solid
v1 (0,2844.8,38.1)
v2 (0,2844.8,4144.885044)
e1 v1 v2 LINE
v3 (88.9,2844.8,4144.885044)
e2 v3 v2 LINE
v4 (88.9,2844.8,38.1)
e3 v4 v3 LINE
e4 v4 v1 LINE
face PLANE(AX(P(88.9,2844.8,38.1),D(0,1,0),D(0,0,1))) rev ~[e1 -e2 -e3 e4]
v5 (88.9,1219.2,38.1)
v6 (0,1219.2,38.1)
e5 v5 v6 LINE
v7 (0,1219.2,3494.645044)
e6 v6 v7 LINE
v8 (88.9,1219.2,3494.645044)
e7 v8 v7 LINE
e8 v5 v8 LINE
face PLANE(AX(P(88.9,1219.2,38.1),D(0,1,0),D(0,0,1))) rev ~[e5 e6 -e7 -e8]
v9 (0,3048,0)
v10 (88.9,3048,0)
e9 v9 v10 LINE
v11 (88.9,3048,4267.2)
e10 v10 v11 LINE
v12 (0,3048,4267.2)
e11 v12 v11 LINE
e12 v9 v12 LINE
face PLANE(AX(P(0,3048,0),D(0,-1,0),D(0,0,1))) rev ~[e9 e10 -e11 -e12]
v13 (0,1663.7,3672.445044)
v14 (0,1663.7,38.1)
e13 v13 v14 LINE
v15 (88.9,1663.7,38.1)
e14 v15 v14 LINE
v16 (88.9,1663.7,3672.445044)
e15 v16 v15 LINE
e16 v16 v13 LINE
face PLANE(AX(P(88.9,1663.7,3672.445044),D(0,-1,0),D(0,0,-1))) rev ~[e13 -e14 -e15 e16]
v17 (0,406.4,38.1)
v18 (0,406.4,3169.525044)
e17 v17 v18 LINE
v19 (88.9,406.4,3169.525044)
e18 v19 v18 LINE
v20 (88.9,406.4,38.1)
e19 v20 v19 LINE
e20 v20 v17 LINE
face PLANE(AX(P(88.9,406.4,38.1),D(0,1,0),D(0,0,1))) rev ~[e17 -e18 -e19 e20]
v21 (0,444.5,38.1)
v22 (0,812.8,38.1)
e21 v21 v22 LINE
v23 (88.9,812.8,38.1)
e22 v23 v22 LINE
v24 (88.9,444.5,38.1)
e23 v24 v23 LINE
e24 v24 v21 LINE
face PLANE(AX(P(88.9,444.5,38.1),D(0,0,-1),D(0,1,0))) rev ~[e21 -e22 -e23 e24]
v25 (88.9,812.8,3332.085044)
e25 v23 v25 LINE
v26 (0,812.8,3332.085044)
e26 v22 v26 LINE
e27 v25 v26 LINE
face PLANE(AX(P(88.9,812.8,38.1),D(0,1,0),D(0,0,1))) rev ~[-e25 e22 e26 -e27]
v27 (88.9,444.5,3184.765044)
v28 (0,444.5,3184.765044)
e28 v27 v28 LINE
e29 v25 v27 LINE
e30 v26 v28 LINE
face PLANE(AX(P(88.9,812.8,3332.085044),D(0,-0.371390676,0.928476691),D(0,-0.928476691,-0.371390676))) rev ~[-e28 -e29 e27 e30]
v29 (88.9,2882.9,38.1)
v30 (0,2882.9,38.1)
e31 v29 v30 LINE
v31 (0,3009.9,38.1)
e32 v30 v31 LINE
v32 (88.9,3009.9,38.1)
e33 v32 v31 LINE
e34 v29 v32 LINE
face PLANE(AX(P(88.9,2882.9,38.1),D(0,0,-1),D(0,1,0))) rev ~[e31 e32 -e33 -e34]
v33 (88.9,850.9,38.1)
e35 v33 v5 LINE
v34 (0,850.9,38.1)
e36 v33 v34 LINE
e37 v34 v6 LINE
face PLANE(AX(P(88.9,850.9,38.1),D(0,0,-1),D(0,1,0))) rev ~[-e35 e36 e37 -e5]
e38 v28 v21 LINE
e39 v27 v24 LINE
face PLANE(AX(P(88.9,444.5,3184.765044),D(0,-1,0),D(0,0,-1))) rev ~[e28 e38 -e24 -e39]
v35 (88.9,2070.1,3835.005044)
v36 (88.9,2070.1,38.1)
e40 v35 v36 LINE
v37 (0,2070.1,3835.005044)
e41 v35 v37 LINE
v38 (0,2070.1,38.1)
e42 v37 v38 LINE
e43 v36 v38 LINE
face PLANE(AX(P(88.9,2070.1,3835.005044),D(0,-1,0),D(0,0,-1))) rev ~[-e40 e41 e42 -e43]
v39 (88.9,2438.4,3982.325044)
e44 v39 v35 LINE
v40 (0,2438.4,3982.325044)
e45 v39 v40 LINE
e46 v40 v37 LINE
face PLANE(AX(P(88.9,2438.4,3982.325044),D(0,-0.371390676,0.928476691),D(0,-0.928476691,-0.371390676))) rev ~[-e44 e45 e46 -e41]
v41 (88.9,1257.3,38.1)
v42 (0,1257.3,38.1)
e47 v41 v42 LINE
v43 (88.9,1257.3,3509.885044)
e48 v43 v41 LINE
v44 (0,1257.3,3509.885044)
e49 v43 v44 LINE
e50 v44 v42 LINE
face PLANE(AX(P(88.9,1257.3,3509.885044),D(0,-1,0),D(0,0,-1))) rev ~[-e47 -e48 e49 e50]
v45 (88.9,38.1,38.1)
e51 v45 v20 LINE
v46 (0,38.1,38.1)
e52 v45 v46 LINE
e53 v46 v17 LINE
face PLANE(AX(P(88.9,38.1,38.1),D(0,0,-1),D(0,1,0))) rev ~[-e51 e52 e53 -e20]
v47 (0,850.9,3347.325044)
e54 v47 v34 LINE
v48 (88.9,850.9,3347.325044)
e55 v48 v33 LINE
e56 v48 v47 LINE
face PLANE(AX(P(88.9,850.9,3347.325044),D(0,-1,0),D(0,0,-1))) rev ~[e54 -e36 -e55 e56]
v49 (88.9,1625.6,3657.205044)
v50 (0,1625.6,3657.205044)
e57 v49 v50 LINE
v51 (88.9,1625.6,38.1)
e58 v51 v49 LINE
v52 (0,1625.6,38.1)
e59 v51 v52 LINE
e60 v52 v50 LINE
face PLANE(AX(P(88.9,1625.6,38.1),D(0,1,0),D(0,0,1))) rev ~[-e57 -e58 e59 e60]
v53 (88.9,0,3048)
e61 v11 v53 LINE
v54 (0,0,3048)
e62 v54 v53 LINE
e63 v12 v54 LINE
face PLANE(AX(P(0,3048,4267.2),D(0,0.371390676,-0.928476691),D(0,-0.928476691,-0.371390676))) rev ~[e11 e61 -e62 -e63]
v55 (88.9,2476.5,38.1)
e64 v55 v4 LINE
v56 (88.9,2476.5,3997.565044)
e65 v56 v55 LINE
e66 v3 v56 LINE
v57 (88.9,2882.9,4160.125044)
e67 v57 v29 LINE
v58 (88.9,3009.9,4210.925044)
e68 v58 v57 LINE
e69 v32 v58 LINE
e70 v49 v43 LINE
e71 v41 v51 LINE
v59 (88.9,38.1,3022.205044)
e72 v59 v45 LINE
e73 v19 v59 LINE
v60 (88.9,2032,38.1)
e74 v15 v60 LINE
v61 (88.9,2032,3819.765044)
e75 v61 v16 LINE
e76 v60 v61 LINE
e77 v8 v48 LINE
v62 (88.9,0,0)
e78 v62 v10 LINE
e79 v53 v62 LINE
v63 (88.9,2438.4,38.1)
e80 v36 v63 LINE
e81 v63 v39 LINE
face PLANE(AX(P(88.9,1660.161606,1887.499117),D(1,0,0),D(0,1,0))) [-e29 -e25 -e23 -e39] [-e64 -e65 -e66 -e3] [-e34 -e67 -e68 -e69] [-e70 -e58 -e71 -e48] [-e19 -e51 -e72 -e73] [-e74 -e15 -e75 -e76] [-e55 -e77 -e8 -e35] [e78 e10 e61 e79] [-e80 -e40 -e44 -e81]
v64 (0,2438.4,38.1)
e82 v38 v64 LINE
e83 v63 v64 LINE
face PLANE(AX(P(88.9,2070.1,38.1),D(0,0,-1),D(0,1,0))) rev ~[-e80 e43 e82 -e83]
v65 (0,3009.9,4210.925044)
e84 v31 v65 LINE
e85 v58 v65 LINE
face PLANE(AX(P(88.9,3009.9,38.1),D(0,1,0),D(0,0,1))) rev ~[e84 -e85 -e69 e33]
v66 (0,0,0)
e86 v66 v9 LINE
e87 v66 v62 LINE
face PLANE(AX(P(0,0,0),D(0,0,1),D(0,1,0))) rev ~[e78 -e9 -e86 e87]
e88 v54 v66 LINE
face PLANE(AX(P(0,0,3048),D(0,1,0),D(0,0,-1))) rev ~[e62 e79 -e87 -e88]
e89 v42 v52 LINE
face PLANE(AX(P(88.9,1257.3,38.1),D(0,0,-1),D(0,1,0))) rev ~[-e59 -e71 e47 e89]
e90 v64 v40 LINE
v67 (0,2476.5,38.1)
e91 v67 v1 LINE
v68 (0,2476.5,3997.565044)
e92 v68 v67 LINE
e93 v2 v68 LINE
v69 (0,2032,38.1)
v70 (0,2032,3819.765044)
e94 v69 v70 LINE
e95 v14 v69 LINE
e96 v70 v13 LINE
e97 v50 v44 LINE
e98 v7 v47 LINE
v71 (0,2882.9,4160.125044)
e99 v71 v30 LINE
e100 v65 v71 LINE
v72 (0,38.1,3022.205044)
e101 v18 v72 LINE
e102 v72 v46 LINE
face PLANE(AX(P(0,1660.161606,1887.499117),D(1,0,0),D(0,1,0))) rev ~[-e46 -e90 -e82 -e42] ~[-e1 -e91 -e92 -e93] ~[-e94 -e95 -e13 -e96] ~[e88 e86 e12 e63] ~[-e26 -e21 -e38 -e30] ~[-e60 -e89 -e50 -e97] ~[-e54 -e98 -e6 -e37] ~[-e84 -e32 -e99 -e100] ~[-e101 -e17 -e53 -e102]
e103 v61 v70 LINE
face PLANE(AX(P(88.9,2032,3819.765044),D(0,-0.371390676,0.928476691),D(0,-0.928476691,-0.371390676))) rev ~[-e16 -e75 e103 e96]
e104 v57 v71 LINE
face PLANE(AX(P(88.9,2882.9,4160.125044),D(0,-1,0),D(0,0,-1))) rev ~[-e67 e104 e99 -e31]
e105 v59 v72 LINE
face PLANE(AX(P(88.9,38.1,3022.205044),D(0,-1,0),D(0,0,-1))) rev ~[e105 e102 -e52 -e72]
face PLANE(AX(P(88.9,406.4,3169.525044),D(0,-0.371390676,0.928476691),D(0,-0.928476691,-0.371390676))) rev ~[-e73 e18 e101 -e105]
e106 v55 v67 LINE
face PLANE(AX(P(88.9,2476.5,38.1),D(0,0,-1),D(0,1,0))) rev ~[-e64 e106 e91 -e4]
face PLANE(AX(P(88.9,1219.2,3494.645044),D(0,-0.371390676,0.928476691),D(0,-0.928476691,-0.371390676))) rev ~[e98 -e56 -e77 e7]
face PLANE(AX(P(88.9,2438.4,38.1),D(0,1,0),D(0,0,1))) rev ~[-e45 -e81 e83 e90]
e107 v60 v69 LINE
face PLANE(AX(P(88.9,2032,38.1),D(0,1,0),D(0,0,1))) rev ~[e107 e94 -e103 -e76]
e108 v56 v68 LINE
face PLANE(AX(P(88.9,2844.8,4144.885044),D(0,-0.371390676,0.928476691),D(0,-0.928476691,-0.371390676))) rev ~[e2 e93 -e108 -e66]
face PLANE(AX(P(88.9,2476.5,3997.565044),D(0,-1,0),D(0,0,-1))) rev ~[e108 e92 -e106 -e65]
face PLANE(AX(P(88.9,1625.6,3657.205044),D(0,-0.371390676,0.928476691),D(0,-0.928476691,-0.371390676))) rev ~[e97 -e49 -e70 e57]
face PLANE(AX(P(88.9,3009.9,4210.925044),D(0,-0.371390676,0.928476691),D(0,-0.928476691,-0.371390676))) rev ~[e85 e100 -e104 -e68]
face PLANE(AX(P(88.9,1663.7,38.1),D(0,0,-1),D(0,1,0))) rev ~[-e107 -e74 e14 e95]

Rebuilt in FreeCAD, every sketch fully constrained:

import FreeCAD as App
import Part
import Sketcher

V = App.Vector
Q = App.Units.Quantity

doc = App.newDocument("Part")
body = doc.addObject("PartDesign::Body", "Body")

sketch1 = body.newObject("Sketcher::SketchObject", "Sketch")
sketch1.AttachmentSupport = (doc.getObject("YZ_Plane"), [""])
sketch1.MapMode = "FlatFace"
sketch1.addGeometry([
    Part.LineSegment(V(0, 3048, 0), V(0, 0, 0)),
    Part.LineSegment(V(0, 0, 0), V(3048, 0, 0)),
    Part.LineSegment(V(3048, 0, 0), V(3048, 4267.2, 0)),
    Part.LineSegment(V(3048, 4267.2, 0), V(0, 3048, 0)),
], False)
sketch1.addConstraint([
    Sketcher.Constraint("Coincident", 0, 2, 1, 1),
    Sketcher.Constraint("Coincident", 1, 2, 2, 1),
    Sketcher.Constraint("Coincident", 2, 2, 3, 1),
    Sketcher.Constraint("Coincident", 3, 2, 0, 1),
    Sketcher.Constraint("Vertical", 0),
    Sketcher.Constraint("Horizontal", 1),
    Sketcher.Constraint("Vertical", 2),
    Sketcher.Constraint("Coincident", 0, 2, -1, 1),
    Sketcher.Constraint("Equal", 1, 0),
    Sketcher.Constraint("DistanceX", 1, 1, 1, 2, Q("120 in")),
    Sketcher.Constraint("DistanceY", 2, 1, 2, 2, Q("168 in")),
])
pad1 = body.newObject("PartDesign::Pad", "Pad")
pad1.Profile = sketch1
pad1.Length = Q("3.5 in")

sketch2 = body.newObject("Sketcher::SketchObject", "Sketch001")
sketch2.AttachmentSupport = (doc.getObject("YZ_Plane"), [""])
sketch2.MapMode = "FlatFace"
sketch2.AttachmentOffset = App.Placement(V(0, 0, 3.5 * 25.4), App.Rotation())
sketch2.addGeometry([
    Part.LineSegment(V(406.4, 3169.525044, 0), V(38.1, 3022.205044, 0)),
    Part.LineSegment(V(38.1, 3022.205044, 0), V(38.1, 38.1, 0)),
    Part.LineSegment(V(38.1, 38.1, 0), V(406.4, 38.1, 0)),
    Part.LineSegment(V(406.4, 38.1, 0), V(406.4, 3169.525044, 0)),
    Part.LineSegment(V(812.8, 3332.085044, 0), V(444.5, 3184.765044, 0)),
    Part.LineSegment(V(444.5, 3184.765044, 0), V(444.5, 38.1, 0)),
    Part.LineSegment(V(444.5, 38.1, 0), V(812.8, 38.1, 0)),
    Part.LineSegment(V(812.8, 38.1, 0), V(812.8, 3332.085044, 0)),
    Part.LineSegment(V(1219.2, 3494.645044, 0), V(850.9, 3347.325044, 0)),
    Part.LineSegment(V(850.9, 3347.325044, 0), V(850.9, 38.1, 0)),
    Part.LineSegment(V(850.9, 38.1, 0), V(1219.2, 38.1, 0)),
    Part.LineSegment(V(1219.2, 38.1, 0), V(1219.2, 3494.645044, 0)),
    Part.LineSegment(V(1625.6, 3657.205044, 0), V(1257.3, 3509.885044, 0)),
    Part.LineSegment(V(1257.3, 3509.885044, 0), V(1257.3, 38.1, 0)),
    Part.LineSegment(V(1257.3, 38.1, 0), V(1625.6, 38.1, 0)),
    Part.LineSegment(V(1625.6, 38.1, 0), V(1625.6, 3657.205044, 0)),
    Part.LineSegment(V(2032, 3819.765044, 0), V(1663.7, 3672.445044, 0)),
    Part.LineSegment(V(1663.7, 3672.445044, 0), V(1663.7, 38.1, 0)),
    Part.LineSegment(V(1663.7, 38.1, 0), V(2032, 38.1, 0)),
    Part.LineSegment(V(2032, 38.1, 0), V(2032, 3819.765044, 0)),
    Part.LineSegment(V(2438.4, 3982.325044, 0), V(2070.1, 3835.005044, 0)),
    Part.LineSegment(V(2070.1, 3835.005044, 0), V(2070.1, 38.1, 0)),
    Part.LineSegment(V(2070.1, 38.1, 0), V(2438.4, 38.1, 0)),
    Part.LineSegment(V(2438.4, 38.1, 0), V(2438.4, 3982.325044, 0)),
    Part.LineSegment(V(2844.8, 4144.885044, 0), V(2476.5, 3997.565044, 0)),
    Part.LineSegment(V(2476.5, 3997.565044, 0), V(2476.5, 38.1, 0)),
    Part.LineSegment(V(2476.5, 38.1, 0), V(2844.8, 38.1, 0)),
    Part.LineSegment(V(2844.8, 38.1, 0), V(2844.8, 4144.885044, 0)),
    Part.LineSegment(V(3009.9, 4210.925044, 0), V(2882.9, 4160.125044, 0)),
    Part.LineSegment(V(2882.9, 4160.125044, 0), V(2882.9, 38.1, 0)),
    Part.LineSegment(V(2882.9, 38.1, 0), V(3009.9, 38.1, 0)),
    Part.LineSegment(V(3009.9, 38.1, 0), V(3009.9, 4210.925044, 0)),
], False)
sketch2.addConstraint([
    Sketcher.Constraint("Coincident", 0, 2, 1, 1),
    Sketcher.Constraint("Coincident", 1, 2, 2, 1),
    Sketcher.Constraint("Coincident", 2, 2, 3, 1),
    Sketcher.Constraint("Coincident", 3, 2, 0, 1),
    Sketcher.Constraint("Coincident", 4, 2, 5, 1),
    Sketcher.Constraint("Coincident", 5, 2, 6, 1),
    Sketcher.Constraint("Coincident", 6, 2, 7, 1),
    Sketcher.Constraint("Coincident", 7, 2, 4, 1),
    Sketcher.Constraint("Coincident", 8, 2, 9, 1),
    Sketcher.Constraint("Coincident", 9, 2, 10, 1),
    Sketcher.Constraint("Coincident", 10, 2, 11, 1),
    Sketcher.Constraint("Coincident", 11, 2, 8, 1),
    Sketcher.Constraint("Coincident", 12, 2, 13, 1),
    Sketcher.Constraint("Coincident", 13, 2, 14, 1),
    Sketcher.Constraint("Coincident", 14, 2, 15, 1),
    Sketcher.Constraint("Coincident", 15, 2, 12, 1),
    Sketcher.Constraint("Coincident", 16, 2, 17, 1),
    Sketcher.Constraint("Coincident", 17, 2, 18, 1),
    Sketcher.Constraint("Coincident", 18, 2, 19, 1),
    Sketcher.Constraint("Coincident", 19, 2, 16, 1),
    Sketcher.Constraint("Coincident", 20, 2, 21, 1),
    Sketcher.Constraint("Coincident", 21, 2, 22, 1),
    Sketcher.Constraint("Coincident", 22, 2, 23, 1),
    Sketcher.Constraint("Coincident", 23, 2, 20, 1),
    Sketcher.Constraint("Coincident", 24, 2, 25, 1),
    Sketcher.Constraint("Coincident", 25, 2, 26, 1),
    Sketcher.Constraint("Coincident", 26, 2, 27, 1),
    Sketcher.Constraint("Coincident", 27, 2, 24, 1),
    Sketcher.Constraint("Coincident", 28, 2, 29, 1),
    Sketcher.Constraint("Coincident", 29, 2, 30, 1),
    Sketcher.Constraint("Coincident", 30, 2, 31, 1),
    Sketcher.Constraint("Coincident", 31, 2, 28, 1),
    Sketcher.Constraint("Vertical", 1),
    Sketcher.Constraint("Horizontal", 2),
    Sketcher.Constraint("Vertical", 3),
    Sketcher.Constraint("Vertical", 5),
    Sketcher.Constraint("Horizontal", 6),
    Sketcher.Constraint("Vertical", 7),
    Sketcher.Constraint("Vertical", 9),
    Sketcher.Constraint("Horizontal", 10),
    Sketcher.Constraint("Vertical", 11),
    Sketcher.Constraint("Vertical", 13),
    Sketcher.Constraint("Horizontal", 14),
    Sketcher.Constraint("Vertical", 15),
    Sketcher.Constraint("Vertical", 17),
    Sketcher.Constraint("Horizontal", 18),
    Sketcher.Constraint("Vertical", 19),
    Sketcher.Constraint("Vertical", 21),
    Sketcher.Constraint("Horizontal", 22),
    Sketcher.Constraint("Vertical", 23),
    Sketcher.Constraint("Vertical", 25),
    Sketcher.Constraint("Horizontal", 26),
    Sketcher.Constraint("Vertical", 27),
    Sketcher.Constraint("Vertical", 29),
    Sketcher.Constraint("Horizontal", 30),
    Sketcher.Constraint("Vertical", 31),
    Sketcher.Constraint("Parallel", 0, 4),
    Sketcher.Constraint("Parallel", 4, 8),
    Sketcher.Constraint("Parallel", 8, 12),
    Sketcher.Constraint("Parallel", 12, 16),
    Sketcher.Constraint("Parallel", 16, 20),
    Sketcher.Constraint("Parallel", 20, 24),
    Sketcher.Constraint("Parallel", 24, 28),
    Sketcher.Constraint("Horizontal", 2, 2, 5, 2),
    Sketcher.Constraint("Horizontal", 6, 2, 9, 2),
    Sketcher.Constraint("Horizontal", 10, 2, 13, 2),
    Sketcher.Constraint("Horizontal", 14, 2, 17, 2),
    Sketcher.Constraint("Horizontal", 18, 2, 21, 2),
    Sketcher.Constraint("Horizontal", 22, 2, 25, 2),
    Sketcher.Constraint("Horizontal", 26, 2, 29, 2),
    Sketcher.Constraint("Equal", 2, 6),
    Sketcher.Constraint("Equal", 6, 10),
    Sketcher.Constraint("Equal", 10, 14),
    Sketcher.Constraint("Equal", 14, 18),
    Sketcher.Constraint("Equal", 18, 22),
    Sketcher.Constraint("Equal", 22, 26),
    Sketcher.Constraint("DistanceX", 30, 1, 30, 2, Q("5 in")),
    Sketcher.Constraint("DistanceX", 2, 1, 2, 2, Q("14.5 in")),
    Sketcher.Constraint("DistanceX", -1, 1, 2, 2, Q("16 in")),
    Sketcher.Constraint("DistanceX", -1, 1, 6, 2, Q("32 in")),
    Sketcher.Constraint("DistanceX", -1, 1, 10, 2, Q("48 in")),
    Sketcher.Constraint("DistanceX", -1, 1, 14, 2, Q("64 in")),
    Sketcher.Constraint("DistanceX", -1, 1, 18, 2, Q("80 in")),
    Sketcher.Constraint("DistanceX", -1, 1, 22, 2, Q("96 in")),
    Sketcher.Constraint("DistanceX", -1, 1, 26, 2, Q("112 in")),
    Sketcher.Constraint("DistanceY", 3, 2, 8, 2, Q("7 in")),
    Sketcher.Constraint("DistanceY", 7, 2, 12, 2, Q("7 in")),
    Sketcher.Constraint("DistanceY", 11, 2, 16, 2, Q("7 in")),
    Sketcher.Constraint("DistanceY", 15, 2, 20, 2, Q("7 in")),
    Sketcher.Constraint("DistanceY", 19, 2, 24, 2, Q("7 in")),
    Sketcher.Constraint("DistanceX", 24, 2, 28, 2, Q("16 in")),
    Sketcher.Constraint("DistanceY", 23, 2, 28, 2, Q("7 in")),
    Sketcher.Constraint("DistanceY", 28, 2, 31, 2, Q("2 in")),
    Sketcher.Constraint("DistanceY", -1, 1, 1, 2, Q("1.5 in")),
    Sketcher.Constraint("DistanceY", 3, 2, 4, 2, Q("0.6 in")),
    Sketcher.Constraint("DistanceY", 1, 2, 1, 1, 2984.105044),
])
pocket1 = body.newObject("PartDesign::Pocket", "Pocket")
pocket1.Profile = sketch2
pocket1.Type = "ThroughAll"

doc.recompute()
